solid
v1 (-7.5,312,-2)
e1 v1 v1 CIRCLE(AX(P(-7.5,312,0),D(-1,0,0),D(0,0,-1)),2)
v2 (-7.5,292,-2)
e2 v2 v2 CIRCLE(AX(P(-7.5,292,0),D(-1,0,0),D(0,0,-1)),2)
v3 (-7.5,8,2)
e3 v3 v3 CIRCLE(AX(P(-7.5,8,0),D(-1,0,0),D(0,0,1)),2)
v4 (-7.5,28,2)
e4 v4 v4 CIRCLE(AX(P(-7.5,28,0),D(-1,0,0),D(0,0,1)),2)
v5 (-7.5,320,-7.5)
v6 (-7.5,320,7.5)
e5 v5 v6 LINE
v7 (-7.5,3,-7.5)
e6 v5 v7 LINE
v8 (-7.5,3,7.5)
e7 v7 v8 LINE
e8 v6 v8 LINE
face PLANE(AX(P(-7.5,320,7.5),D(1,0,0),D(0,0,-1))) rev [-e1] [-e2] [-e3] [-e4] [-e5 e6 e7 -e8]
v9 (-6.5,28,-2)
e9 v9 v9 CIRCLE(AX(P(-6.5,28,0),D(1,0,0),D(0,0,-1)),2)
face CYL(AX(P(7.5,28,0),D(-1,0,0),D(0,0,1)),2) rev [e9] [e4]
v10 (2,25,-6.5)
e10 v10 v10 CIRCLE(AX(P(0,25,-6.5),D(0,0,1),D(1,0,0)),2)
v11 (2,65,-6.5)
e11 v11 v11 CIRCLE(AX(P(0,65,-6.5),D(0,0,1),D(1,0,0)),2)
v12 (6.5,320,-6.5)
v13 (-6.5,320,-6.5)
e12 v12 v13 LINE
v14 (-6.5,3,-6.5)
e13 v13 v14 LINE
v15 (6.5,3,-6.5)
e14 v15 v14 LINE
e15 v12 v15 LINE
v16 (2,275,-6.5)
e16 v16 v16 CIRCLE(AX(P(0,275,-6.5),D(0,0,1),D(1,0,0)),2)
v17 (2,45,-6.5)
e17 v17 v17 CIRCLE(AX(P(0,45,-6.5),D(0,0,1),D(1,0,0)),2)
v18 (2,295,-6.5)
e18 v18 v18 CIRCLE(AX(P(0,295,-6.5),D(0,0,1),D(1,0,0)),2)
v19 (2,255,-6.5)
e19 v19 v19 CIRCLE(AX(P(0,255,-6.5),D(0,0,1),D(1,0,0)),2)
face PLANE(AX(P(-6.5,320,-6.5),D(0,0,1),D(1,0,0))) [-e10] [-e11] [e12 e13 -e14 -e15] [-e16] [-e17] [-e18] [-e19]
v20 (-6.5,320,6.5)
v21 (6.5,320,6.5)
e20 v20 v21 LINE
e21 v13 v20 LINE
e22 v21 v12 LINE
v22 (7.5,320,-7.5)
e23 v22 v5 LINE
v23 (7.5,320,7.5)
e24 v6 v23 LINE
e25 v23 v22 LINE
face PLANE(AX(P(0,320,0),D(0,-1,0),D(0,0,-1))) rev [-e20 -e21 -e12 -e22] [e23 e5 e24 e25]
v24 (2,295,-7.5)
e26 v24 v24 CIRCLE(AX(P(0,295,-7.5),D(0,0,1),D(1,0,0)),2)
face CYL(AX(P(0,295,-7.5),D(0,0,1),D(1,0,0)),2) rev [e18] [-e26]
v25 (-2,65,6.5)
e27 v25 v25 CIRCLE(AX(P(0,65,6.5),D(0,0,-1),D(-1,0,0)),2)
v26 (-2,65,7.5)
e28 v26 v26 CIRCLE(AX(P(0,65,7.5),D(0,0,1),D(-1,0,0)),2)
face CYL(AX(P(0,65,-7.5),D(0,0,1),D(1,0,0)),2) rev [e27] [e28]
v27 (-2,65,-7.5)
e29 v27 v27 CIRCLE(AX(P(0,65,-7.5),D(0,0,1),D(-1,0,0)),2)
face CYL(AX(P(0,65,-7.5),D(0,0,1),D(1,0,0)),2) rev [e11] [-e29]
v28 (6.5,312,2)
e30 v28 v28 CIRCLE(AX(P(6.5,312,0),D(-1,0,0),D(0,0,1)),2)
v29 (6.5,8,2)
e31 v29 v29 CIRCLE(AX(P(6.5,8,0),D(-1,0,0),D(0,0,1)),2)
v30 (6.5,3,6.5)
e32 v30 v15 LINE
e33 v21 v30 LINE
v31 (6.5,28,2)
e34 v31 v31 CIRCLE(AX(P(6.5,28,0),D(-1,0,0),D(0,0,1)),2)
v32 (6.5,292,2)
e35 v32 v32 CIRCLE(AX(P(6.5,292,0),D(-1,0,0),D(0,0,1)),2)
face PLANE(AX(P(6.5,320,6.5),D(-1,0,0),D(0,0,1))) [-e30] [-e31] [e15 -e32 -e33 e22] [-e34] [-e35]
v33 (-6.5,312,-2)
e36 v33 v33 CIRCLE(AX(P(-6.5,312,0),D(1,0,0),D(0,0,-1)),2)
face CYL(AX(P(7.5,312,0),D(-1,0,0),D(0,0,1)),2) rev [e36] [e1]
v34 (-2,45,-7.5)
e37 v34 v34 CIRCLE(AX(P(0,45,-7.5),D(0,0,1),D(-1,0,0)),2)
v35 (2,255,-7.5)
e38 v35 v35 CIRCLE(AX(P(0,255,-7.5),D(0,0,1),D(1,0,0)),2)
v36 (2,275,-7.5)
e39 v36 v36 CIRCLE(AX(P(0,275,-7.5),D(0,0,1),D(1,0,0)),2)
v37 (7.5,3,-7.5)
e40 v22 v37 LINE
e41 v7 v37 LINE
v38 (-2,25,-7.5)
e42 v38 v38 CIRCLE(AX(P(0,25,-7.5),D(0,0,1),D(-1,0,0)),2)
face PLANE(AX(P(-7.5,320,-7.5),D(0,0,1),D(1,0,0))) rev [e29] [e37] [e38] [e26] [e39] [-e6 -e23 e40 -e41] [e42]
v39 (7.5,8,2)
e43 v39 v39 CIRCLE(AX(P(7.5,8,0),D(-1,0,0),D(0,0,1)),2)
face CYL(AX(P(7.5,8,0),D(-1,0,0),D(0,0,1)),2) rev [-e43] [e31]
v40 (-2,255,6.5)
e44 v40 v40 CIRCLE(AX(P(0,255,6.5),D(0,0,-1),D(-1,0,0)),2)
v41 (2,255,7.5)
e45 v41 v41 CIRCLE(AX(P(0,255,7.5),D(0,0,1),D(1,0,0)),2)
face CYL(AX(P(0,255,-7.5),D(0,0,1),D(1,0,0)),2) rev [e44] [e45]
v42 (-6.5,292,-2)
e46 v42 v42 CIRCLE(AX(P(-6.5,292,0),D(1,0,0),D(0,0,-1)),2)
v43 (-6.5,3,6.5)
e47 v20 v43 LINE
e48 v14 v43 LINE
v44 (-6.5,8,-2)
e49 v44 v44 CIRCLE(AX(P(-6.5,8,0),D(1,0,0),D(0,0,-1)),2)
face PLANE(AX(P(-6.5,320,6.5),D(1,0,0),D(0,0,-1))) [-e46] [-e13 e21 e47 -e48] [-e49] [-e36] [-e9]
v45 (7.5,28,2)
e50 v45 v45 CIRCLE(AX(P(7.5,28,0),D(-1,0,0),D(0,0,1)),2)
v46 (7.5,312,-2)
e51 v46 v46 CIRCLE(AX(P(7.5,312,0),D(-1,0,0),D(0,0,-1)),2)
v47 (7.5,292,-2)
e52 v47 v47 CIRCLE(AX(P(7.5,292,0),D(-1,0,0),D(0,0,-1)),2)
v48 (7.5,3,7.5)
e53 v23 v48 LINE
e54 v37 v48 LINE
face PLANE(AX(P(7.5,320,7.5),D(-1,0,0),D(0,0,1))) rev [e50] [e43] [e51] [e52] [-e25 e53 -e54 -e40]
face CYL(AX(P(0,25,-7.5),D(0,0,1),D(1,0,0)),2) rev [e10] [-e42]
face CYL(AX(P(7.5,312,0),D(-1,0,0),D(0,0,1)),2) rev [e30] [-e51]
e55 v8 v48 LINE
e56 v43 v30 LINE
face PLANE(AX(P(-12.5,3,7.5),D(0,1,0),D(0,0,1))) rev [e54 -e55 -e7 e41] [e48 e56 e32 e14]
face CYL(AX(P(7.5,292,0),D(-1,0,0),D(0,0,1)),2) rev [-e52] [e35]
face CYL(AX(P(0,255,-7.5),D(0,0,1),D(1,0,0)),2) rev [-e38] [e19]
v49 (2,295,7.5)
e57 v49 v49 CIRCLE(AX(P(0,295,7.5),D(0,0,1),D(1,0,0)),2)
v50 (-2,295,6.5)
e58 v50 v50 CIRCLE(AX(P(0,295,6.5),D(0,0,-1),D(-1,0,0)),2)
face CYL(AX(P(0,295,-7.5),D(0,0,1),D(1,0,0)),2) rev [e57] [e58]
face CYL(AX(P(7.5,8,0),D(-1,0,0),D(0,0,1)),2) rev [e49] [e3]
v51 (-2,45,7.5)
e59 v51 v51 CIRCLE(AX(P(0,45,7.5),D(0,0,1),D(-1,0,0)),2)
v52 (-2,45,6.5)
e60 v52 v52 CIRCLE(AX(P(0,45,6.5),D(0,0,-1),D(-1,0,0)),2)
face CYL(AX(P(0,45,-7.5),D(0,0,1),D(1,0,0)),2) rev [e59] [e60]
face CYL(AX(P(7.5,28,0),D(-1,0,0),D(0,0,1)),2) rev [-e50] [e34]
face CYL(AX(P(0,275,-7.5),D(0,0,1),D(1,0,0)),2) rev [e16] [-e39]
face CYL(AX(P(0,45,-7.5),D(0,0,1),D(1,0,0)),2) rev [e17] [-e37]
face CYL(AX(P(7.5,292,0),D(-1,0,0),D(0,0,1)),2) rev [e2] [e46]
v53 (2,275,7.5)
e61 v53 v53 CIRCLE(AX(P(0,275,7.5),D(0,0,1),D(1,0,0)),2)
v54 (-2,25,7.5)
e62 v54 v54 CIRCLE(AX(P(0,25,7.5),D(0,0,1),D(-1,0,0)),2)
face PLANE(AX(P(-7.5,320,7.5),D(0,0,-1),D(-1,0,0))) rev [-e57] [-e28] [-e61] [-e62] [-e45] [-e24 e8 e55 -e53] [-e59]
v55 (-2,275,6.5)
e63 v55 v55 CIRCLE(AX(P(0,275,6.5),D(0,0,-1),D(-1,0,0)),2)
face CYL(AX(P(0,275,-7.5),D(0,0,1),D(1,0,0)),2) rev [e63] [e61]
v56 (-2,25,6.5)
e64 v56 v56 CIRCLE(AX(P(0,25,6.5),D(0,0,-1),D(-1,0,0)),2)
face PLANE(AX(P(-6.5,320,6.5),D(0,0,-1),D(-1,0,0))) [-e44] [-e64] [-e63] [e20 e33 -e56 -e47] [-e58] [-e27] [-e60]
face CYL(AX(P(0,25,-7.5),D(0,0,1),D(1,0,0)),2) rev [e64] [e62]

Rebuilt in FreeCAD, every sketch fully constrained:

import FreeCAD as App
import Part
import Sketcher

V = App.Vector

doc = App.newDocument("Part")
body = doc.addObject("PartDesign::Body", "Body")

# Sketch on XZ plane
sketch1 = body.newObject("Sketcher::SketchObject", "Sketch")
sketch1.AttachmentSupport = (doc.getObject("XZ_Plane"), [""])
sketch1.MapMode = "FlatFace"
sketch1.addGeometry([
    Part.LineSegment(V(-8, -8, 0), V(-8, 8, 0)),  # 0
    Part.LineSegment(V(-8, 8, 0), V(8, 8, 0)),  # 1
    Part.LineSegment(V(8, 8, 0), V(8, -8, 0)),  # 2
    Part.LineSegment(V(8, -8, 0), V(-8, -8, 0)),  # 3
    Part.LineSegment(V(6, 6, 0), V(-6, 6, 0)),  # 4
    Part.LineSegment(V(-6, 6, 0), V(-6, -6, 0)),  # 5
    Part.LineSegment(V(-6, -6, 0), V(6, -6, 0)),  # 6
    Part.LineSegment(V(6, -6, 0), V(6, 6, 0)),  # 7
], False)
sketch1.addConstraint([
    Sketcher.Constraint("Coincident", 0, 2, 1, 1),
    Sketcher.Constraint("Coincident", 1, 2, 2, 1),
    Sketcher.Constraint("Coincident", 2, 2, 3, 1),
    Sketcher.Constraint("Coincident", 3, 2, 0, 1),
    Sketcher.Constraint("Coincident", 4, 2, 5, 1),
    Sketcher.Constraint("Coincident", 5, 2, 6, 1),
    Sketcher.Constraint("Coincident", 6, 2, 7, 1),
    Sketcher.Constraint("Coincident", 7, 2, 4, 1),
    Sketcher.Constraint("Vertical", 0),
    Sketcher.Constraint("Horizontal", 1),
    Sketcher.Constraint("Vertical", 2),
    Sketcher.Constraint("Horizontal", 3),
    Sketcher.Constraint("Horizontal", 4),
    Sketcher.Constraint("Vertical", 5),
    Sketcher.Constraint("Horizontal", 6),
    Sketcher.Constraint("Vertical", 7),
    Sketcher.Constraint("Symmetric", 0, 2, 2, 2, -1, 1),
    Sketcher.Constraint("Symmetric", 4, 2, 6, 2, -1, 1),
    Sketcher.Constraint("Equal", 3, 0),
    Sketcher.Constraint("Equal", 6, 5),
    Sketcher.Constraint("DistanceX", 1, 1, 1, 2, 15.0),
    Sketcher.Constraint("DistanceX", 4, 2, 4, 1, 13.0),
])
pad1 = body.newObject("PartDesign::Pad", "Pad")
pad1.Profile = sketch1
pad1.Length = 320
pad1.Reversed = True

# Sketch on XY plane
sketch2 = body.newObject("Sketcher::SketchObject", "Sketch001")
sketch2.AttachmentSupport = (doc.getObject("XY_Plane"), [""])
sketch2.MapMode = "FlatFace"
sketch2.AttachmentOffset = App.Placement(V(0, 0, 7.5), App.Rotation())
sketch2.addGeometry([
    Part.Circle(V(0, 295, 0), V(0, 0, 1), 2),  # 0
    Part.Circle(V(0, 275, 0), V(0, 0, 1), 2),  # 1
    Part.Circle(V(0, 45, 0), V(0, 0, 1), 2),  # 2
    Part.Circle(V(0, 25, 0), V(0, 0, 1), 2),  # 3
    Part.Circle(V(0, 255, 0), V(0, 0, 1), 2),  # 4
    Part.Circle(V(0, 65, 0), V(0, 0, 1), 2),  # 5
], False)
sketch2.addConstraint([
    Sketcher.Constraint("Equal", 0, 1),
    Sketcher.Constraint("Equal", 1, 2),
    Sketcher.Constraint("Equal", 2, 3),
    Sketcher.Constraint("Equal", 3, 4),
    Sketcher.Constraint("Equal", 4, 5),
    Sketcher.Constraint("PointOnObject", 0, 3, -2),
    Sketcher.Constraint("PointOnObject", 1, 3, -2),
    Sketcher.Constraint("PointOnObject", 2, 3, -2),
    Sketcher.Constraint("PointOnObject", 3, 3, -2),
    Sketcher.Constraint("PointOnObject", 4, 3, -2),
    Sketcher.Constraint("PointOnObject", 5, 3, -2),
    Sketcher.Constraint("Diameter", 0, 4.0),
    Sketcher.Constraint("DistanceY", -1, 1, 0, 3, 295.0),
    Sketcher.Constraint("DistanceY", -1, 1, 1, 3, 275.0),
    Sketcher.Constraint("DistanceY", -1, 1, 2, 3, 45.0),
    Sketcher.Constraint("DistanceY", -1, 1, 3, 3, 25.0),
    Sketcher.Constraint("DistanceY", -1, 1, 4, 3, 255.0),
    Sketcher.Constraint("DistanceY", -1, 1, 5, 3, 65.0),
])
pocket1 = body.newObject("PartDesign::Pocket", "Pocket")
pocket1.Profile = sketch2
pocket1.Type = "ThroughAll"

# Sketch on YZ plane
sketch3 = body.newObject("Sketcher::SketchObject", "Sketch002")
sketch3.AttachmentSupport = (doc.getObject("YZ_Plane"), [""])
sketch3.MapMode = "FlatFace"
sketch3.AttachmentOffset = App.Placement(V(0, 0, -7.5), App.Rotation())
sketch3.addGeometry([
    Part.Circle(V(8, 0, 0), V(0, 0, 1), 2),
    Part.Circle(V(28, 0, 0), V(0, 0, 1), 2),
    Part.Circle(V(292, 0, 0), V(0, 0, 1), 2),
    Part.Circle(V(312, 0, 0), V(0, 0, 1), 2),
], False)
sketch3.addConstraint([
    Sketcher.Constraint("Equal", 0, 1),
    Sketcher.Constraint("Equal", 1, 2),
    Sketcher.Constraint("Equal", 2, 3),
    Sketcher.Constraint("PointOnObject", 0, 3, -1),
    Sketcher.Constraint("PointOnObject", 1, 3, -1),
    Sketcher.Constraint("PointOnObject", 2, 3, -1),
    Sketcher.Constraint("PointOnObject", 3, 3, -1),
    Sketcher.Constraint("Diameter", 0, 4.0),
    Sketcher.Constraint("DistanceX", -1, 1, 0, 3, 8.0),
    Sketcher.Constraint("DistanceX", -1, 1, 1, 3, 28.0),
    Sketcher.Constraint("DistanceX", -1, 1, 2, 3, 292.0),
    Sketcher.Constraint("DistanceX", -1, 1, 3, 3, 312.0),
])
pocket2 = body.newObject("PartDesign::Pocket", "Pocket001")
pocket2.Profile = sketch3
pocket2.Type = "ThroughAll"
pocket2.Reversed = True

# Sketch on YZ plane
sketch4 = body.newObject("Sketcher::SketchObject", "Sketch003")
sketch4.AttachmentSupport = (doc.getObject("YZ_Plane"), [""])
sketch4.MapMode = "FlatFace"
sketch4.AttachmentOffset = App.Placement(V(0, 0, 7.5), App.Rotation())
sketch4.addGeometry([
    Part.LineSegment(V(3, 7.5, 0), V(0, 7.5, 0)),
    Part.LineSegment(V(0, 7.5, 0), V(0, -7.5, 0)),
    Part.LineSegment(V(0, -7.5, 0), V(3, -7.5, 0)),
    Part.LineSegment(V(3, -7.5, 0), V(3, 7.5, 0)),
], False)
sketch4.addConstraint([
    Sketcher.Constraint("Coincident", 0, 2, 1, 1),
    Sketcher.Constraint("Coincident", 1, 2, 2, 1),
    Sketcher.Constraint("Coincident", 2, 2, 3, 1),
    Sketcher.Constraint("Coincident", 3, 2, 0, 1),
    Sketcher.Constraint("Horizontal", 0),
    Sketcher.Constraint("Vertical", 1),
    Sketcher.Constraint("Horizontal", 2),
    Sketcher.Constraint("Vertical", 3),
    Sketcher.Constraint("Symmetric", 0, 2, 1, 2, -1, 1),
    Sketcher.Constraint("DistanceX", 0, 2, 0, 1, 3.0),
    Sketcher.Constraint("DistanceY", 1, 2, 1, 1, 15.0),
])
pocket3 = body.newObject("PartDesign::Pocket", "Pocket002")
pocket3.Profile = sketch4
pocket3.Length = 20

doc.recompute()
